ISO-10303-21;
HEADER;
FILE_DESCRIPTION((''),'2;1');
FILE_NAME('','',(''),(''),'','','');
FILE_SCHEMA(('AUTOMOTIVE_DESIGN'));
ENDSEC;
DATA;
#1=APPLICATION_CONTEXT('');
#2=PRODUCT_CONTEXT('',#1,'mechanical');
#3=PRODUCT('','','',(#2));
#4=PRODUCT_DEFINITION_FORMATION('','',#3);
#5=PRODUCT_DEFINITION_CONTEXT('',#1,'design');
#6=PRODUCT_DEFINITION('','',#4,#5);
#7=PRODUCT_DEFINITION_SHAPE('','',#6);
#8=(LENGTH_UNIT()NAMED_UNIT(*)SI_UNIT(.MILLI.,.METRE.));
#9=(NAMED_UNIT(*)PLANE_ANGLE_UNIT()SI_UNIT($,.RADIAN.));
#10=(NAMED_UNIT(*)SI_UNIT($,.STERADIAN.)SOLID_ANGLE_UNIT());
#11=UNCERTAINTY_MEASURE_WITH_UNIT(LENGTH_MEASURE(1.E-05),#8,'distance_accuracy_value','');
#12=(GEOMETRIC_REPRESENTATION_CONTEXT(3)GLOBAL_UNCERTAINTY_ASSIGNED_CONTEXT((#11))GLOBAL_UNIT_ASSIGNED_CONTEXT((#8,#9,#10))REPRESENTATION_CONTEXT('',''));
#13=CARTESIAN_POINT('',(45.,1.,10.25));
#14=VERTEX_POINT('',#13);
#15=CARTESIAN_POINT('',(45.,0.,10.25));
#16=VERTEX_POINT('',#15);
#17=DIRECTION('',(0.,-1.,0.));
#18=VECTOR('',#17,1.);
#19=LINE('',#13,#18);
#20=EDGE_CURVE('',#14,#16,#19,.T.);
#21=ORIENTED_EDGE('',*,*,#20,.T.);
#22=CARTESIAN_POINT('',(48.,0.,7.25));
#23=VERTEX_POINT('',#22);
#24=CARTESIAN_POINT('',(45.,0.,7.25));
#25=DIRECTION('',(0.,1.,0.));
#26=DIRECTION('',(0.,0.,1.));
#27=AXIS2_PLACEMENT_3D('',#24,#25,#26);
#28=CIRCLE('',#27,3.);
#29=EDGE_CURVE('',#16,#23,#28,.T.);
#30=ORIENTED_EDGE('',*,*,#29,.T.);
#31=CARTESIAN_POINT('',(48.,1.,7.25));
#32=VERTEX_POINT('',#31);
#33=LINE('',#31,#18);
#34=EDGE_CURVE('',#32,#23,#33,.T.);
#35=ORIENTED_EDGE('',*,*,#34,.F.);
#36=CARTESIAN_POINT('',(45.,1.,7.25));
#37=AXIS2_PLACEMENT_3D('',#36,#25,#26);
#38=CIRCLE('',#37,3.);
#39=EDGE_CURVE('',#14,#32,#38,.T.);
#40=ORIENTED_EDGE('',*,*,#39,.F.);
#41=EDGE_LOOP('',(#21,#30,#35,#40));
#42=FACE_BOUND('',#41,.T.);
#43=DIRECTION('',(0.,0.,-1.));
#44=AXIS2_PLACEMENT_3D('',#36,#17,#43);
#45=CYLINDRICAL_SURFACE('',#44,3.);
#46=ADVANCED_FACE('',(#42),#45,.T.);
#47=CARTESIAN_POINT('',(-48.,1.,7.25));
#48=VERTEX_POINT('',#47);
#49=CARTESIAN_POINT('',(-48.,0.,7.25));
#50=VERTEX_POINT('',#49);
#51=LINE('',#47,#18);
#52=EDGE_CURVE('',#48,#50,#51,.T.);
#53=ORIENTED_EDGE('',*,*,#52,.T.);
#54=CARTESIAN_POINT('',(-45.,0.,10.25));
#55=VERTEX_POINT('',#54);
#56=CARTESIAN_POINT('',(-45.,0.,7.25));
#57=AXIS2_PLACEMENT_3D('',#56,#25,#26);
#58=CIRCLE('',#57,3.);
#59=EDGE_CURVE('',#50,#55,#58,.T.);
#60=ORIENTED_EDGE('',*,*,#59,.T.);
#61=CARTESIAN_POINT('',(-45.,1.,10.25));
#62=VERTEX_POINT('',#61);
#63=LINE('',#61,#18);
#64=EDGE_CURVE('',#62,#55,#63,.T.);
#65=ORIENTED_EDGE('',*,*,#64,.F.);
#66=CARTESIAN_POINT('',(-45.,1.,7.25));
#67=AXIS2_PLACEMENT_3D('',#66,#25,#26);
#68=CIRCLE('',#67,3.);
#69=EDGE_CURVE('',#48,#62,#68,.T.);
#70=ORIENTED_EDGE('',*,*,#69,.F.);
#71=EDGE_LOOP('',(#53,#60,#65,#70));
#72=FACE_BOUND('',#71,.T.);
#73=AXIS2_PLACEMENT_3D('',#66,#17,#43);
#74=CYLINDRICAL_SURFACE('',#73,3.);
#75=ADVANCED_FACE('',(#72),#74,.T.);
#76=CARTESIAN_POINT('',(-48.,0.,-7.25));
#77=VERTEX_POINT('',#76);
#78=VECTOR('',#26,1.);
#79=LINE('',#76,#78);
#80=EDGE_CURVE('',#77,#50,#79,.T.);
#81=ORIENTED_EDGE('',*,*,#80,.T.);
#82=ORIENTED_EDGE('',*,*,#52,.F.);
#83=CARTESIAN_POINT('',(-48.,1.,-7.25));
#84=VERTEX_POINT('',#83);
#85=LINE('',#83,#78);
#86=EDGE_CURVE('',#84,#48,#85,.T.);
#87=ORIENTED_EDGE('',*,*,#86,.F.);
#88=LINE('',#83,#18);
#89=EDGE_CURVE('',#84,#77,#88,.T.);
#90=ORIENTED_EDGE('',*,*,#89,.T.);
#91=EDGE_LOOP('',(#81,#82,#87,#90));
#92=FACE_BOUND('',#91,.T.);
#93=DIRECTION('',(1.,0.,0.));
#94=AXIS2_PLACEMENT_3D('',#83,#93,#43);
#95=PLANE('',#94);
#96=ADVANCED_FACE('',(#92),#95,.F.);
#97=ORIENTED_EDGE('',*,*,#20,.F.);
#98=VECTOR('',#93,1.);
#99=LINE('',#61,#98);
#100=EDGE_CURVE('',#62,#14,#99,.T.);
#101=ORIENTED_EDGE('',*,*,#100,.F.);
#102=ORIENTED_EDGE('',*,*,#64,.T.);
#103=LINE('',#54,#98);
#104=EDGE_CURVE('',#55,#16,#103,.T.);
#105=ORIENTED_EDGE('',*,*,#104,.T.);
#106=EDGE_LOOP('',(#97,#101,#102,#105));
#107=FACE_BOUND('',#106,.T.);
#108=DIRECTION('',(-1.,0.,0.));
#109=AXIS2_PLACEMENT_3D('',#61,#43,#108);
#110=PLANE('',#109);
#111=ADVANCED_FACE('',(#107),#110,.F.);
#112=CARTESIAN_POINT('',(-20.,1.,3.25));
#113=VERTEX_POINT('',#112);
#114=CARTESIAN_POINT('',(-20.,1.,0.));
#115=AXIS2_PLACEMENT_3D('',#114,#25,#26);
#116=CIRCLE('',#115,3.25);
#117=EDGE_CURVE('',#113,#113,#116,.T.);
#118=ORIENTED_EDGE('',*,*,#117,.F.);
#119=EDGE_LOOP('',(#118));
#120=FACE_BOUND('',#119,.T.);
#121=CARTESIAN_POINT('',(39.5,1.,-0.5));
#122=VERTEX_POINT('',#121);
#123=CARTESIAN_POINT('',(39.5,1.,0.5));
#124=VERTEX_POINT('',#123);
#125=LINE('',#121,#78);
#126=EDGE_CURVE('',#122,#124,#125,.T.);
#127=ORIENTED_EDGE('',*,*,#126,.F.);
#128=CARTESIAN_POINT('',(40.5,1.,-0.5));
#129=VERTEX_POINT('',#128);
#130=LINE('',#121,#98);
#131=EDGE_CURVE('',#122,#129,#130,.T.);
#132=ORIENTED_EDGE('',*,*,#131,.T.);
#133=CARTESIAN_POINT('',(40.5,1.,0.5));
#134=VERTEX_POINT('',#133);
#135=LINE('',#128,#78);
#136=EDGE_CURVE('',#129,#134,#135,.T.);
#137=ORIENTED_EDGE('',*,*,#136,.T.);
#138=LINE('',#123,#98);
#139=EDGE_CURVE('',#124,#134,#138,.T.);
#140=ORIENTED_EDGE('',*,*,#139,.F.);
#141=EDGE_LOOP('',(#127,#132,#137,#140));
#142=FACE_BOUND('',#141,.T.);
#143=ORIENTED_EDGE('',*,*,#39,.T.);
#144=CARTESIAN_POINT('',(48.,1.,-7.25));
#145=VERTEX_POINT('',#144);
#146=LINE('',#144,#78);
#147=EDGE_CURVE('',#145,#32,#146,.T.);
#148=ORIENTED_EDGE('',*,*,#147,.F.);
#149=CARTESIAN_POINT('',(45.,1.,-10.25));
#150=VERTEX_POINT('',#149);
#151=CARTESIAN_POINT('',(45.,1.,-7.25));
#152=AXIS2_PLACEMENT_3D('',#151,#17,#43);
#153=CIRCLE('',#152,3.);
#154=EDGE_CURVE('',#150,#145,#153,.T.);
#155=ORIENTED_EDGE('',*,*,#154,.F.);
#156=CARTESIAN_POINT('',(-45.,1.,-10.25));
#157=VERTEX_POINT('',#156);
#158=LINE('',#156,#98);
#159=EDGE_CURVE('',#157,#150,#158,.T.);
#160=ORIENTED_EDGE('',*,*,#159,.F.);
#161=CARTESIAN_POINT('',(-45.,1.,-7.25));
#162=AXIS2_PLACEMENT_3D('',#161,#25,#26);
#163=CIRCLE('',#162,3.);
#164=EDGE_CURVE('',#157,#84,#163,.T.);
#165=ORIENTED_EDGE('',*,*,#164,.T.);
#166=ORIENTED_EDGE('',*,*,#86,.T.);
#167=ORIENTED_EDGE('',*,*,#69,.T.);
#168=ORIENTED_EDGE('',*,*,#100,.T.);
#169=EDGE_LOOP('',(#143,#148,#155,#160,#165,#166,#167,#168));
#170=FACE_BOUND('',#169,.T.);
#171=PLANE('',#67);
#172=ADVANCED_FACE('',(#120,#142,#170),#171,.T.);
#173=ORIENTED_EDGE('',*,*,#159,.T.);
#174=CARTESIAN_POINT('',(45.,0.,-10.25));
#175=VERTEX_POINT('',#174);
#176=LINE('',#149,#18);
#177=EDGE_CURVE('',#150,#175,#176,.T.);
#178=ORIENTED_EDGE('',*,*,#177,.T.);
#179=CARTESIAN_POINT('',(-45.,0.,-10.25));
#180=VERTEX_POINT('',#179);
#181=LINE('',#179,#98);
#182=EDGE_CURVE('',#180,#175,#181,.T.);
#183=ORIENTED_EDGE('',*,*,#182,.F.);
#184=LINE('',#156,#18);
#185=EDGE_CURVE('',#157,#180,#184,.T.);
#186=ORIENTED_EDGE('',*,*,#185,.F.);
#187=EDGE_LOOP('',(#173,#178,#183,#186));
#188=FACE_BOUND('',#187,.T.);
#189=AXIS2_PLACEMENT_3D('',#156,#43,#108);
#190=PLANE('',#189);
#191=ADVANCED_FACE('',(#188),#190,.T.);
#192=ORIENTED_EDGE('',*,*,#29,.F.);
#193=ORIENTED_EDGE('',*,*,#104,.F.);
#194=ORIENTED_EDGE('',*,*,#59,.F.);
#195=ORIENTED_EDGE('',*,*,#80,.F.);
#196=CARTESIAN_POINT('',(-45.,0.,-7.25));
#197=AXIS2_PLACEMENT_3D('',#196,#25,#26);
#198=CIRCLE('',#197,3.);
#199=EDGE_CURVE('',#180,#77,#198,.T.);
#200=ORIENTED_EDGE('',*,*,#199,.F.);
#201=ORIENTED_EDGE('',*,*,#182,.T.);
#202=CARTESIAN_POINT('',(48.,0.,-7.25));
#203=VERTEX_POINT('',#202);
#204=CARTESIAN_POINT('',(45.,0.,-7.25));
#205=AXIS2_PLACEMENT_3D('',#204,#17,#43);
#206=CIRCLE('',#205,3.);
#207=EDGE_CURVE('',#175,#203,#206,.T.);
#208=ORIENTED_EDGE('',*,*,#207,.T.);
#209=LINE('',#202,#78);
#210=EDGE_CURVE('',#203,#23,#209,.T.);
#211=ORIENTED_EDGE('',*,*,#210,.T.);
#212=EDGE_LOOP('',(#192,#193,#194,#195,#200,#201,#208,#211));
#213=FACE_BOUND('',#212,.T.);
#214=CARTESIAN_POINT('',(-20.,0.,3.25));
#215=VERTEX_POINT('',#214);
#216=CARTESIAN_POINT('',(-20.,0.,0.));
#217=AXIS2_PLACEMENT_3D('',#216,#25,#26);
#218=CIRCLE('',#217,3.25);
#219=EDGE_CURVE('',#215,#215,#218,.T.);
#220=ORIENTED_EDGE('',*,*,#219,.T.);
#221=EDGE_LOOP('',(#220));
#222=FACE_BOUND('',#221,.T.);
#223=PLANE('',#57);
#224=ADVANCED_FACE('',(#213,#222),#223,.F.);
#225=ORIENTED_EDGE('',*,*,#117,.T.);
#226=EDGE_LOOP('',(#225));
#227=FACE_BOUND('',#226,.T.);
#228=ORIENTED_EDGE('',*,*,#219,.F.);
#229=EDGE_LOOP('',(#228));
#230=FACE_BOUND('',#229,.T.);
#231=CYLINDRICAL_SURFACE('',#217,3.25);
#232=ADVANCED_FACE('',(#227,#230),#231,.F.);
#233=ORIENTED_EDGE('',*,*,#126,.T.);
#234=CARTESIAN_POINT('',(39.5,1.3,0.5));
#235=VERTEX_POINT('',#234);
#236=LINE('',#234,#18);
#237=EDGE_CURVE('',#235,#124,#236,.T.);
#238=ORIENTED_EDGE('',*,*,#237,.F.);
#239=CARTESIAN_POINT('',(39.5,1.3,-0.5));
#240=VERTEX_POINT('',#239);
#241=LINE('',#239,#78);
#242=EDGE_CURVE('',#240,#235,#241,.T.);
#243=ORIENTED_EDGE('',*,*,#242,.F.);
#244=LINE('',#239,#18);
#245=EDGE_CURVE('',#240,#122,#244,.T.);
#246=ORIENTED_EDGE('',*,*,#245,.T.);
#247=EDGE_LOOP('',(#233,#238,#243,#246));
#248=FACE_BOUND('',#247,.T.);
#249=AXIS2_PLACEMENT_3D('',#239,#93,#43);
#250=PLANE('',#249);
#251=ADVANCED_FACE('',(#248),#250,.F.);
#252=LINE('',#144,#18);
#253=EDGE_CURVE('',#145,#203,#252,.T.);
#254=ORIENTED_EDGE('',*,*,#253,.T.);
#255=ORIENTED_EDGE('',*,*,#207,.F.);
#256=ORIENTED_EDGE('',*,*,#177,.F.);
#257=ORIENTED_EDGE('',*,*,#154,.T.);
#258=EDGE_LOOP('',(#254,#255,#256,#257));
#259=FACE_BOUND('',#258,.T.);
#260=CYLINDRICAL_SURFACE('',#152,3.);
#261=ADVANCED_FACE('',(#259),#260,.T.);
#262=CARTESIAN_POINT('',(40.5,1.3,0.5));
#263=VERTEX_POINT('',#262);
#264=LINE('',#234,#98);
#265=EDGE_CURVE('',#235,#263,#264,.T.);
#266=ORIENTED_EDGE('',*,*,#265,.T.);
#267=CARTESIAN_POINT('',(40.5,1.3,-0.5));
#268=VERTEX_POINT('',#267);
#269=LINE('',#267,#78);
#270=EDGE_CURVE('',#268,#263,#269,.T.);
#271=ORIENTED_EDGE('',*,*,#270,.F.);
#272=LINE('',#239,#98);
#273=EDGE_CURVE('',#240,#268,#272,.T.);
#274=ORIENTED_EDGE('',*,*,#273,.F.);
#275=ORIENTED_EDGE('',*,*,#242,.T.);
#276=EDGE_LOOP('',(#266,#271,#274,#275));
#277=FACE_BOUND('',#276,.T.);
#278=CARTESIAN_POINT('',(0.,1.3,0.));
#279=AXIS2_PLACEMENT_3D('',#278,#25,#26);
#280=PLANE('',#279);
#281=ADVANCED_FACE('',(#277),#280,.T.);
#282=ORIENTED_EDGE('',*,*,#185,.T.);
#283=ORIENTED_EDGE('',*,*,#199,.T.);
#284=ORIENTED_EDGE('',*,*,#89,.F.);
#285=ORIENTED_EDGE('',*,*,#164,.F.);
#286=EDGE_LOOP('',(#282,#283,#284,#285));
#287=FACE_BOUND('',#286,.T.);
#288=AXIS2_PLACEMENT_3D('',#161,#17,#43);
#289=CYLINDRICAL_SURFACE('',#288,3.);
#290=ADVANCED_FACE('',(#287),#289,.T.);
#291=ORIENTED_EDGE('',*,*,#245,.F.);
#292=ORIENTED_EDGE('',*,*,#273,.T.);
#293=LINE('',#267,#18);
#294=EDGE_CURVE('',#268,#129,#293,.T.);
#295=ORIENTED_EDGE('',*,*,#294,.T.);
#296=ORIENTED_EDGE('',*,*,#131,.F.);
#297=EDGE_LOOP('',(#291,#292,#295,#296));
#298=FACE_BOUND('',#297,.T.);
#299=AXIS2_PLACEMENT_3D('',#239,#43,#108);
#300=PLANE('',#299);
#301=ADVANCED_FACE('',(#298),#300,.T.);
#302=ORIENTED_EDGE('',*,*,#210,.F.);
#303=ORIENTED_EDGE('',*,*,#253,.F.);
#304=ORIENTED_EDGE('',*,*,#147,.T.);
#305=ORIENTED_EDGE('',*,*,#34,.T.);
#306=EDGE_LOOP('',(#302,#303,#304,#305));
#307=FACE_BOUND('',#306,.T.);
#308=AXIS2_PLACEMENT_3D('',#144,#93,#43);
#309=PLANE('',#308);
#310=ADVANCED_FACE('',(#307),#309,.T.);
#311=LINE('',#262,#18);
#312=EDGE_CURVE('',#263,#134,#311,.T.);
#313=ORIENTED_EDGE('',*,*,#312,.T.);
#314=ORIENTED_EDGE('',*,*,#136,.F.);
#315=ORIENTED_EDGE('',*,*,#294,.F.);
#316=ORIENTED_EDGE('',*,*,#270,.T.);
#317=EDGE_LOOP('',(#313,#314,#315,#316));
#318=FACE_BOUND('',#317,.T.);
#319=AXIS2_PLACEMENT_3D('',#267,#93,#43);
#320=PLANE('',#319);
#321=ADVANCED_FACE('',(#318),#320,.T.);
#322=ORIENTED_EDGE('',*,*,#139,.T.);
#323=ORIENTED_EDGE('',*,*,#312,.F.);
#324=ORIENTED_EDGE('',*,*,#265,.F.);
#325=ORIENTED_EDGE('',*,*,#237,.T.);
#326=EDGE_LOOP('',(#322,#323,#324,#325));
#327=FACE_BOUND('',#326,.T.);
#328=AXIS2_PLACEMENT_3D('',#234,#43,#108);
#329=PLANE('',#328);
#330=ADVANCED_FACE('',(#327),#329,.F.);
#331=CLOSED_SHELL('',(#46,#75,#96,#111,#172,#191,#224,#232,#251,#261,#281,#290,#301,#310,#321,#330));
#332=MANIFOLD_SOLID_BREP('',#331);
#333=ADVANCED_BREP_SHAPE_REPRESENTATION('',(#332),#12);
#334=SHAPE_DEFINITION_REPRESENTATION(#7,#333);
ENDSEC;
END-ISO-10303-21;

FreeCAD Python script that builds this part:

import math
import FreeCAD as App
import Part
import Sketcher
Q = App.Units.Quantity


def add_polygon(sketch, points):
    """Adds a closed chain of lines whose ends are joined by coincident constraints."""
    first, n = sketch.GeometryCount, len(points)
    for a, b in zip(points, points[1:] + points[:1]):
        sketch.addGeometry(Part.LineSegment(App.Vector(*a, 0), App.Vector(*b, 0)), False)
    for i in range(n):
        sketch.addConstraint(Sketcher.Constraint("Coincident", first + i, 2, first + (i + 1) % n, 1))

doc = App.newDocument("Part")
body = doc.addObject("PartDesign::Body", "Body")

# Sketch on XZ plane
sketch1 = doc.addObject("Sketcher::SketchObject", "Sketch")
body.addObject(sketch1)
sketch1.AttachmentSupport = (doc.XZ_Plane, [""])
sketch1.MapMode = "FlatFace"
sketch1.addGeometry([
    Part.LineSegment(App.Vector(45, -10.25, 0), App.Vector(-45, -10.25, 0)),  # 0
    Part.ArcOfCircle(Part.Circle(App.Vector(-45, -7.25, 0), App.Vector(0, 0, 1), 3), math.radians(180), math.radians(270)),  # 1
    Part.LineSegment(App.Vector(-48, -7.25, 0), App.Vector(-48, 7.25, 0)),  # 2
    Part.ArcOfCircle(Part.Circle(App.Vector(-45, 7.25, 0), App.Vector(0, 0, 1), 3), math.radians(90), math.radians(180)),  # 3
    Part.LineSegment(App.Vector(-45, 10.25, 0), App.Vector(45, 10.25, 0)),  # 4
    Part.ArcOfCircle(Part.Circle(App.Vector(45, 7.25, 0), App.Vector(0, 0, 1), 3), math.radians(0), math.radians(90)),  # 5
    Part.LineSegment(App.Vector(48, 7.25, 0), App.Vector(48, -7.25, 0)),  # 6
    Part.ArcOfCircle(Part.Circle(App.Vector(45, -7.25, 0), App.Vector(0, 0, 1), 3), math.radians(-90), math.radians(0)),  # 7
], False)
sketch1.addConstraint([
    Sketcher.Constraint("Tangent", 0, 2, 1, 2),
    Sketcher.Constraint("Tangent", 1, 1, 2, 1),
    Sketcher.Constraint("Tangent", 2, 2, 3, 2),
    Sketcher.Constraint("Tangent", 3, 1, 4, 1),
    Sketcher.Constraint("Tangent", 4, 2, 5, 2),
    Sketcher.Constraint("Tangent", 5, 1, 6, 1),
    Sketcher.Constraint("Tangent", 6, 2, 7, 2),
    Sketcher.Constraint("Tangent", 7, 1, 0, 1),
    Sketcher.Constraint("Horizontal", 0),
    Sketcher.Constraint("Vertical", 2),
    Sketcher.Constraint("Horizontal", 4),
    Sketcher.Constraint("Vertical", 6),
    Sketcher.Constraint("Equal", 1, 3),
    Sketcher.Constraint("Equal", 3, 5),
    Sketcher.Constraint("Equal", 5, 7),
    Sketcher.Constraint("Symmetric", 1, 3, 5, 3, -1, 1),
    Sketcher.Constraint("Radius", 1, Q("3 mm")),
    Sketcher.Constraint("DistanceX", 0, 2, 0, 1, Q("90 mm")),
    Sketcher.Constraint("DistanceY", 2, 1, 2, 2, Q("14.5 mm")),
])
pad1 = doc.addObject("PartDesign::Pad", "Pad")
body.addObject(pad1)
pad1.Profile = sketch1
pad1.Length = 1
pad1.Reversed = True

# Sketch on XZ plane
sketch2 = doc.addObject("Sketcher::SketchObject", "Sketch001")
body.addObject(sketch2)
sketch2.AttachmentSupport = (doc.XZ_Plane, [""])
sketch2.MapMode = "FlatFace"
sketch2.AttachmentOffset = App.Placement(App.Vector(0, 0, -1), App.Rotation())
add_polygon(sketch2, [(39.5, -0.5), (39.5, 0.5), (40.5, 0.5), (40.5, -0.5)])  # lines 0-3
sketch2.addConstraint([
    Sketcher.Constraint("Vertical", 0),
    Sketcher.Constraint("Horizontal", 1),
    Sketcher.Constraint("Vertical", 2),
    Sketcher.Constraint("Horizontal", 3),
    Sketcher.Constraint("Equal", 3, 0),
    Sketcher.Constraint("DistanceX", 1, 1, 1, 2, Q("1 mm")),
    Sketcher.Constraint("DistanceX", -1, 1, 0, 2, Q("39.5 mm")),
    Sketcher.Constraint("DistanceY", -1, 1, 0, 2, Q("0.5 mm")),
])
pad2 = doc.addObject("PartDesign::Pad", "Pad001")
body.addObject(pad2)
pad2.Profile = sketch2
pad2.Length = 0.3
pad2.Reversed = True

# Sketch on XZ plane
sketch3 = doc.addObject("Sketcher::SketchObject", "Sketch002")
body.addObject(sketch3)
sketch3.AttachmentSupport = (doc.XZ_Plane, [""])
sketch3.MapMode = "FlatFace"
sketch3.AttachmentOffset = App.Placement(App.Vector(0, 0, -1), App.Rotation())
sketch3.addGeometry(Part.Circle(App.Vector(-20, 0, 0), App.Vector(0, 0, 1), 3.25), False)
sketch3.addConstraint([
    Sketcher.Constraint("PointOnObject", 0, 3, -1),
    Sketcher.Constraint("Diameter", 0, Q("6.5 mm")),
    Sketcher.Constraint("DistanceX", 0, 3, -1, 1, Q("20 mm")),
])
pocket1 = doc.addObject("PartDesign::Pocket", "Pocket")
body.addObject(pocket1)
pocket1.Profile = sketch3
pocket1.Type = "ThroughAll"
pocket1.Reversed = True

doc.recompute()
